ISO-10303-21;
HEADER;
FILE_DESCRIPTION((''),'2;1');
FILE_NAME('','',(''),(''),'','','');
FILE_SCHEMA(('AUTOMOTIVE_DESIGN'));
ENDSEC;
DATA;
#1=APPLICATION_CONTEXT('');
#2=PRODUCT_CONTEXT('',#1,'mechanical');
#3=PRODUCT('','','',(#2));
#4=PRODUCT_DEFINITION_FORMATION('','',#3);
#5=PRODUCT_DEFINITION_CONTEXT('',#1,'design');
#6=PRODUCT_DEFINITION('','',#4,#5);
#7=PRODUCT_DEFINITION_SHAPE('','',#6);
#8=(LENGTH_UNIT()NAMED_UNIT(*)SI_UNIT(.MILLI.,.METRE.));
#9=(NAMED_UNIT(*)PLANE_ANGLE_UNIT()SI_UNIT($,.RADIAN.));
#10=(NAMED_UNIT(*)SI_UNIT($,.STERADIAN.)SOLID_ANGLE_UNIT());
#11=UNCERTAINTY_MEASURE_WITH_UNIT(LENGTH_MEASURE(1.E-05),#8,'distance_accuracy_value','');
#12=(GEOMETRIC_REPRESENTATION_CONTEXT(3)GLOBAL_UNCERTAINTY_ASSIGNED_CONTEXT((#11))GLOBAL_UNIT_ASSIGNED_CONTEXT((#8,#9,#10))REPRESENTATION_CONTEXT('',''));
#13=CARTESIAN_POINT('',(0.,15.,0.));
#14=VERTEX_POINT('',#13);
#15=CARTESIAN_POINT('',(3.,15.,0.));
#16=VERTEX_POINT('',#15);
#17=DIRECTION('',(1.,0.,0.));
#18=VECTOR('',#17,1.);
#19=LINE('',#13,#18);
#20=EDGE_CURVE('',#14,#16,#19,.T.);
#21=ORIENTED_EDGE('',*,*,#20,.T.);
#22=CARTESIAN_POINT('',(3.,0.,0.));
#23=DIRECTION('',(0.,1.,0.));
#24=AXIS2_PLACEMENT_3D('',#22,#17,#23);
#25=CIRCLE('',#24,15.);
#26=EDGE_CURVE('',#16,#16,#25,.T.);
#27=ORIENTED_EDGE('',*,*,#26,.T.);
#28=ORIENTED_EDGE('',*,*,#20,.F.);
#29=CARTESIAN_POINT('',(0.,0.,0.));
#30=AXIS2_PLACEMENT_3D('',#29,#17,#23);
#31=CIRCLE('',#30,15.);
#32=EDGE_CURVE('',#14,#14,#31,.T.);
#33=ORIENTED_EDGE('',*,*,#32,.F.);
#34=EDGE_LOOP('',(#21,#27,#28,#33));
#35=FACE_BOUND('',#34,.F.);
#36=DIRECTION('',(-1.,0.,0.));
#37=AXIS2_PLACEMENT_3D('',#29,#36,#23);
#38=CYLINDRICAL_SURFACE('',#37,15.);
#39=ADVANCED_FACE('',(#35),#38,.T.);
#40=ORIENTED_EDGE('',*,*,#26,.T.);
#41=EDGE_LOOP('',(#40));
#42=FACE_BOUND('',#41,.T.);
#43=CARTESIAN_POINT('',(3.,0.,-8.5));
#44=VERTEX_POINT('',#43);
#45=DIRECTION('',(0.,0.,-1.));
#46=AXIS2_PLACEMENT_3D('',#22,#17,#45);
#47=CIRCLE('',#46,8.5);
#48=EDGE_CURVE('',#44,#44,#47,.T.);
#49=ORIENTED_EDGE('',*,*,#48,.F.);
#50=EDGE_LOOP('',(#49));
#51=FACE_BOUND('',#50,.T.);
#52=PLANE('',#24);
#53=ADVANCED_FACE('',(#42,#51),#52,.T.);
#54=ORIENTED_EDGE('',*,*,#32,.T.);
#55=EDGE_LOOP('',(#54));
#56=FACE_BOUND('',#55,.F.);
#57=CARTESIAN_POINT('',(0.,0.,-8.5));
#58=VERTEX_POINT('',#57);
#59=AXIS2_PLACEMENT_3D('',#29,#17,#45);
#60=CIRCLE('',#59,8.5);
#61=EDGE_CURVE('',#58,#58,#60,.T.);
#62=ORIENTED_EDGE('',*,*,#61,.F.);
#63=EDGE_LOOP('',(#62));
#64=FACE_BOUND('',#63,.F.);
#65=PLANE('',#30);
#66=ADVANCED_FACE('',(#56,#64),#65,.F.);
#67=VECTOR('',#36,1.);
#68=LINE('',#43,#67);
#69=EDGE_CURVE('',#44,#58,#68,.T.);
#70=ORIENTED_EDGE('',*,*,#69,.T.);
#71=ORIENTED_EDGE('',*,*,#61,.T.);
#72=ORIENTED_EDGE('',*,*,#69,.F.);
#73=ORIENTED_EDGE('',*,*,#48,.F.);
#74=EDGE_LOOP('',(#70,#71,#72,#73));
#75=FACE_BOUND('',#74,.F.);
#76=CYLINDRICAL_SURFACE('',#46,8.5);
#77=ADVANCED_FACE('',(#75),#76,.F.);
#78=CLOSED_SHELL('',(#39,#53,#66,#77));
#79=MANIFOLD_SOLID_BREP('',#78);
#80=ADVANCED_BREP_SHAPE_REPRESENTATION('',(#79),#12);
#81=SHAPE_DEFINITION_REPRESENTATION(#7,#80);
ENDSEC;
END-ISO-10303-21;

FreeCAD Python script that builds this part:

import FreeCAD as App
import Part
import Sketcher
from FreeCAD import Vector
Q = App.Units.Quantity

doc = App.newDocument("Part")
params = doc.addObject("Spreadsheet::Sheet", "Params")
for row, (alias, value) in enumerate([
    ("sketch1_diameter", "30 mm"),
    ("pad1_length", "3 mm"),
    ("sketch2_diameter", "17 mm"),
    ("pocket1_length", "3 mm"),
], start=1):
    params.set(f"A{row}", alias)
    params.set(f"B{row}", "=" + value)
    params.setAlias(f"B{row}", alias)

body = doc.addObject("PartDesign::Body", "Body")

# Sketch on YZ plane
sketch1 = body.newObject("Sketcher::SketchObject", "Sketch")
sketch1.AttachmentSupport = (doc.getObject("YZ_Plane"), [""])
sketch1.MapMode = "FlatFace"
sketch1.addGeometry(Part.Circle(Vector(0, 0, 0), Vector(0, 0, 1), 15), False)
sketch1.addConstraint([
    Sketcher.Constraint("Coincident", 0, 3, -1, 1),
    Sketcher.Constraint("Diameter", 0, Q("30 mm")),
])
sketch1.setExpression("Constraints[1]", "Params.sketch1_diameter")
pad1 = body.newObject("PartDesign::Pad", "Pad")
pad1.Profile = sketch1
pad1.setExpression("Length", "Params.pad1_length")

# Sketch on YZ plane
sketch2 = body.newObject("Sketcher::SketchObject", "Sketch001")
sketch2.AttachmentSupport = (doc.getObject("YZ_Plane"), [""])
sketch2.MapMode = "FlatFace"
sketch2.AttachmentOffset = App.Placement(Vector(0, 0, 3), App.Rotation())
sketch2.addGeometry(Part.Circle(Vector(0, 0, 0), Vector(0, 0, 1), 8), False)
sketch2.addConstraint([
    Sketcher.Constraint("Coincident", 0, 3, -1, 1),
    Sketcher.Constraint("Diameter", 0, Q("17 mm")),
])
sketch2.setExpression("Constraints[1]", "Params.sketch2_diameter")
pocket1 = body.newObject("PartDesign::Pocket", "Pocket")
pocket1.Profile = sketch2
pocket1.setExpression("Length", "Params.pocket1_length")

doc.recompute()
